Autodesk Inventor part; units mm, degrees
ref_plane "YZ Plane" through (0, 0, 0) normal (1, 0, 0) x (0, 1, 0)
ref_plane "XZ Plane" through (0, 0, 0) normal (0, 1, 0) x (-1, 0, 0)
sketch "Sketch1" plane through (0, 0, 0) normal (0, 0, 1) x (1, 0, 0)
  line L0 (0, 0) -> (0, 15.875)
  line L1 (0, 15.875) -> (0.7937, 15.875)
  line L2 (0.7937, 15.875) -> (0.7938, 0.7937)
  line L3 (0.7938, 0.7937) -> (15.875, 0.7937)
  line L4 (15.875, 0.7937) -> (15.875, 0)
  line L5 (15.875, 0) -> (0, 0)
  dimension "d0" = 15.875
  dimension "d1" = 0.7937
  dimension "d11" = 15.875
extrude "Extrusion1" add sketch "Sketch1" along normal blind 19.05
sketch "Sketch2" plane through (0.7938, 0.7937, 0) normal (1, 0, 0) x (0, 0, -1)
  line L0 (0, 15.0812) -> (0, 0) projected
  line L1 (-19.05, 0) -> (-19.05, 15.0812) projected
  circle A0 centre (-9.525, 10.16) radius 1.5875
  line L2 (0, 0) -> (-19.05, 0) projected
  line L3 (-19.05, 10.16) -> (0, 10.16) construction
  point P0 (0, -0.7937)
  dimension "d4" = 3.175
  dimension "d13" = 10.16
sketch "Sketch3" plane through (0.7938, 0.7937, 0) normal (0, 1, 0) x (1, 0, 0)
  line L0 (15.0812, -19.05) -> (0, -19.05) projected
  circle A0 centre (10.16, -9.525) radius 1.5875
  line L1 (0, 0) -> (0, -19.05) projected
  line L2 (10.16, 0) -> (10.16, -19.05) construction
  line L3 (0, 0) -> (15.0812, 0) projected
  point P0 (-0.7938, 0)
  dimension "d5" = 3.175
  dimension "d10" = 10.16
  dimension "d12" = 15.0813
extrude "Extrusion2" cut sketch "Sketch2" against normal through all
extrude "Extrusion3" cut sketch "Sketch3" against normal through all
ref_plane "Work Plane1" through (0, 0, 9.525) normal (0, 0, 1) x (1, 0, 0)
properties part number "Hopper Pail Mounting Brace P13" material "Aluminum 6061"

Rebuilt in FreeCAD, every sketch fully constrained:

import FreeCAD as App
import Part
import Sketcher
from FreeCAD import Vector
Q = App.Units.Quantity

doc = App.newDocument("Part")
params = doc.addObject("Spreadsheet::Sheet", "Params")
for row, (alias, value) in enumerate([
    ("sketch1_width", "0.625 in"),
    ("sketch1_width2", "0.031248 in"),
    ("pad1_length", "0.75 in"),
    ("sketch2_diameter", "0.125 in"),
    ("sketch3_diameter", "0.125 in"),
], start=1):
    params.set(f"A{row}", alias)
    params.set(f"B{row}", "=" + value)
    params.setAlias(f"B{row}", alias)

body = doc.addObject("PartDesign::Body", "Body")

# Sketch on XY plane
sketch1 = body.newObject("Sketcher::SketchObject", "Sketch")
sketch1.AttachmentSupport = (doc.getObject("XY_Plane"), [""])
sketch1.MapMode = "FlatFace"
sketch1.addGeometry(Part.LineSegment(Vector(0, 15.9, 0), Vector(0, 0, 0)), False)
sketch1.addGeometry(Part.LineSegment(Vector(0, 0, 0), Vector(15.9, 0, 0)), False)
sketch1.addGeometry(Part.LineSegment(Vector(15.9, 0, 0), Vector(15.9, 0.8, 0)), False)
sketch1.addGeometry(Part.LineSegment(Vector(15.9, 0.8, 0), Vector(0.8, 0.8, 0)), False)
sketch1.addGeometry(Part.LineSegment(Vector(0.8, 0.8, 0), Vector(0.8, 15.9, 0)), False)
sketch1.addGeometry(Part.LineSegment(Vector(0.8, 15.9, 0), Vector(0, 15.9, 0)), False)
sketch1.addConstraint(Sketcher.Constraint("Coincident", 0, 2, 1, 1))
sketch1.addConstraint(Sketcher.Constraint("Coincident", 1, 2, 2, 1))
sketch1.addConstraint(Sketcher.Constraint("Coincident", 2, 2, 3, 1))
sketch1.addConstraint(Sketcher.Constraint("Coincident", 3, 2, 4, 1))
sketch1.addConstraint(Sketcher.Constraint("Coincident", 4, 2, 5, 1))
sketch1.addConstraint(Sketcher.Constraint("Coincident", 5, 2, 0, 1))
sketch1.addConstraint(Sketcher.Constraint("Vertical", 0))
sketch1.addConstraint(Sketcher.Constraint("Horizontal", 1))
sketch1.addConstraint(Sketcher.Constraint("Vertical", 2))
sketch1.addConstraint(Sketcher.Constraint("Horizontal", 3))
sketch1.addConstraint(Sketcher.Constraint("Vertical", 4))
sketch1.addConstraint(Sketcher.Constraint("Horizontal", 5))
sketch1.addConstraint(Sketcher.Constraint("Coincident", 0, 2, -1, 1))
sketch1.addConstraint(Sketcher.Constraint("Equal", 1, 0))
sketch1.addConstraint(Sketcher.Constraint("Equal", 5, 2))
sketch1.addConstraint(Sketcher.Constraint("DistanceX", 1, 1, 1, 2, Q("0.625 in")))
sketch1.addConstraint(Sketcher.Constraint("DistanceX", 5, 2, 5, 1, Q("0.031248 in")))
sketch1.setExpression("Constraints[15]", "Params.sketch1_width")
sketch1.setExpression("Constraints[16]", "Params.sketch1_width2")
pad1 = body.newObject("PartDesign::Pad", "Pad")
pad1.Profile = sketch1
pad1.setExpression("Length", "Params.pad1_length")

# Sketch on YZ plane
sketch2 = body.newObject("Sketcher::SketchObject", "Sketch001")
sketch2.AttachmentSupport = (doc.getObject("YZ_Plane"), [""])
sketch2.MapMode = "FlatFace"
sketch2.AttachmentOffset = App.Placement(Vector(0, 0, 0.031252 * 25.4), App.Rotation())
sketch2.addGeometry(Part.Circle(Vector(11, 9.5, 0), Vector(0, 0, 1), 1.6), False)
sketch2.addConstraint(Sketcher.Constraint("Diameter", 0, Q("0.125 in")))
sketch2.addConstraint(Sketcher.Constraint("DistanceY", -1, 1, 0, 3, Q("0.375 in")))
sketch2.addConstraint(Sketcher.Constraint("DistanceX", -1, 1, 0, 3, 10.9537))
sketch2.setExpression("Constraints[0]", "Params.sketch2_diameter")
pocket1 = body.newObject("PartDesign::Pocket", "Pocket")
pocket1.Profile = sketch2
pocket1.Type = "ThroughAll"

# Sketch on XZ plane
sketch3 = body.newObject("Sketcher::SketchObject", "Sketch002")
sketch3.AttachmentSupport = (doc.getObject("XZ_Plane"), [""])
sketch3.MapMode = "FlatFace"
sketch3.AttachmentOffset = App.Placement(Vector(0, 0, -0.031248 * 25.4), App.Rotation())
sketch3.addGeometry(Part.Circle(Vector(11, 9.5, 0), Vector(0, 0, 1), 1.6), False)
sketch3.addConstraint(Sketcher.Constraint("Diameter", 0, Q("0.125 in")))
sketch3.addConstraint(Sketcher.Constraint("DistanceY", -1, 1, 0, 3, Q("0.375 in")))
sketch3.addConstraint(Sketcher.Constraint("DistanceX", -1, 1, 0, 3, 10.9538))
sketch3.setExpression("Constraints[0]", "Params.sketch3_diameter")
pocket2 = body.newObject("PartDesign::Pocket", "Pocket001")
pocket2.Profile = sketch3
pocket2.Type = "ThroughAll"
pocket2.Reversed = True

doc.recompute()
